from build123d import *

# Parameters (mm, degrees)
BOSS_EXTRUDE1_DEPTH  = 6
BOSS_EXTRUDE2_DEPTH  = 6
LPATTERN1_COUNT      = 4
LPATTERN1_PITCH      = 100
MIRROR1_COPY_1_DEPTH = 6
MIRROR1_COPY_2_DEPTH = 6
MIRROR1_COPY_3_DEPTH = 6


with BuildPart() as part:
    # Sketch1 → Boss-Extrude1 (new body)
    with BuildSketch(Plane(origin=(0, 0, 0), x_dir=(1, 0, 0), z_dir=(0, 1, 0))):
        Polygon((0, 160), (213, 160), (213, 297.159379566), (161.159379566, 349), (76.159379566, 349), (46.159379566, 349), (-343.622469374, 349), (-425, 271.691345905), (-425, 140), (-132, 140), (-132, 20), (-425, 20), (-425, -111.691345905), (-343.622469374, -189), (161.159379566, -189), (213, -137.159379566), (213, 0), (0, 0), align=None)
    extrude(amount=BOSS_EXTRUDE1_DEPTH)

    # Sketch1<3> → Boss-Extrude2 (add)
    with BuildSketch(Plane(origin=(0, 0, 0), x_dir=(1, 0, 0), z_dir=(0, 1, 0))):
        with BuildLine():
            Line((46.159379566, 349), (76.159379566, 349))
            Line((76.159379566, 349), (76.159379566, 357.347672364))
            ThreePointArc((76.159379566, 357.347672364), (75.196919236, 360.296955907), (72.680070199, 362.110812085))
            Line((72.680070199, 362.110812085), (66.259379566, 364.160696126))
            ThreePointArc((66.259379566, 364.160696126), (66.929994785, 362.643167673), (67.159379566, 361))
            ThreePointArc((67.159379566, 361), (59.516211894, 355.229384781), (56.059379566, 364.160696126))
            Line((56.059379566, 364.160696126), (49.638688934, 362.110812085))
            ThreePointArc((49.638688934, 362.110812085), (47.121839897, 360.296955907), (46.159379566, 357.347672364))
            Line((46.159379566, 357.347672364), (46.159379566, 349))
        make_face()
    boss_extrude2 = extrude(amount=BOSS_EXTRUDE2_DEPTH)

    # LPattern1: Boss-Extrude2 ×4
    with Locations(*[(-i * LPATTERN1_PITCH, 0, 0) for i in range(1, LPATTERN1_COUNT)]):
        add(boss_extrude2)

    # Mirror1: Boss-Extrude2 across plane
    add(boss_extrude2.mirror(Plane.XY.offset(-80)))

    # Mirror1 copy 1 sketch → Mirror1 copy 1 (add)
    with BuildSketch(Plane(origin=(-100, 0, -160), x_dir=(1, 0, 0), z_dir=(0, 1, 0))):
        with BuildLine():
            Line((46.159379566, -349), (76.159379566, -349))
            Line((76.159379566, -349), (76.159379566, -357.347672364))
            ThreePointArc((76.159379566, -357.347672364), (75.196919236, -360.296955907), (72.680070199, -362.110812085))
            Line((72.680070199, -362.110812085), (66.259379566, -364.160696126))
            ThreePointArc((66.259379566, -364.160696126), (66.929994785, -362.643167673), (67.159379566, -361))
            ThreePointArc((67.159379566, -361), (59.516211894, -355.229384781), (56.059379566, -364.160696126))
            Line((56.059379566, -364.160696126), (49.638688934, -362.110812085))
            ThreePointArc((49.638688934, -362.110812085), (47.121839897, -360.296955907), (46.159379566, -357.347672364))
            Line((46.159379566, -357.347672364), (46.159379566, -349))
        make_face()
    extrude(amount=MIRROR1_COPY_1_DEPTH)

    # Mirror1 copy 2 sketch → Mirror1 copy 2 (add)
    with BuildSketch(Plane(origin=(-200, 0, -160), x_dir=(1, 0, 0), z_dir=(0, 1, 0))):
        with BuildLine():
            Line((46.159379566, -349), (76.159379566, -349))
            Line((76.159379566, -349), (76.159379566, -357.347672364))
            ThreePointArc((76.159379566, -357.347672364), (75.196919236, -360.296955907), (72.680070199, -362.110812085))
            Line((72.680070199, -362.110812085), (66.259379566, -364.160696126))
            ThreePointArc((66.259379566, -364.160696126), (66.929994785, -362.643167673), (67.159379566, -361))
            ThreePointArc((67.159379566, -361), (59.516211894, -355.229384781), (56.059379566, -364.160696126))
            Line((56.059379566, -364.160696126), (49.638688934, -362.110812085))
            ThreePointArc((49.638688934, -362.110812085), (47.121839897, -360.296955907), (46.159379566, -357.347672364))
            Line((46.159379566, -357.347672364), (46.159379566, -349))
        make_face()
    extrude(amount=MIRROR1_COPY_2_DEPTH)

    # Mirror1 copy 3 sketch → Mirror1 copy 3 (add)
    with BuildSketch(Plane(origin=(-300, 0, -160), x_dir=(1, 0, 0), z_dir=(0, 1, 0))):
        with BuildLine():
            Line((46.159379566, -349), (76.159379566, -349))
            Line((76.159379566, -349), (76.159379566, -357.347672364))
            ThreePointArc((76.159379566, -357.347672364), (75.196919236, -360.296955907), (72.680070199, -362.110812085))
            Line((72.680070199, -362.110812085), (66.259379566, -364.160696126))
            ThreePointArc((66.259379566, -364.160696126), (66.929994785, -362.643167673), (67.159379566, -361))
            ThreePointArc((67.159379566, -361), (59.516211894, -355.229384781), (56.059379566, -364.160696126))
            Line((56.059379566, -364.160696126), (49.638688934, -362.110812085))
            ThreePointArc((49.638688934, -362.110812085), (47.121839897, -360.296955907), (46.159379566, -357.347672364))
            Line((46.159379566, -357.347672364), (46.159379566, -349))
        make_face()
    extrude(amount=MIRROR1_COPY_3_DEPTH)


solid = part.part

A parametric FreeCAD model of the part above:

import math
import FreeCAD as App
import Part
import Sketcher
Q = App.Units.Quantity


def add_polygon(sketch, points):
    """Adds a closed chain of lines whose ends are joined by coincident constraints."""
    first, n = sketch.GeometryCount, len(points)
    for a, b in zip(points, points[1:] + points[:1]):
        sketch.addGeometry(Part.LineSegment(App.Vector(*a, 0), App.Vector(*b, 0)), False)
    for i in range(n):
        sketch.addConstraint(Sketcher.Constraint("Coincident", first + i, 2, first + (i + 1) % n, 1))

doc = App.newDocument("Part")
body = doc.addObject("PartDesign::Body", "Body")

# Sketch on XZ plane
sketch1 = body.newObject("Sketcher::SketchObject", "Sketch")
sketch1.AttachmentSupport = (doc.getObject("XZ_Plane"), [""])
sketch1.MapMode = "FlatFace"
add_polygon(sketch1, [(0, -160), (213, -160), (213, -297.15938), (161.15938, -349), (-343.622469, -349), (-425, -271.691346), (-425, -140), (-132, -140), (-132, -20), (-425, -20), (-425, 111.691346), (-343.622469, 189), (161.15938, 189), (213, 137.15938), (213, 0), (0, 0)])  # lines 0-15
sketch1.addConstraint([
    Sketcher.Constraint("Horizontal", 0),
    Sketcher.Constraint("Vertical", 1),
    Sketcher.Constraint("Horizontal", 3),
    Sketcher.Constraint("Vertical", 5),
    Sketcher.Constraint("Horizontal", 6),
    Sketcher.Constraint("Vertical", 7),
    Sketcher.Constraint("Horizontal", 8),
    Sketcher.Constraint("Vertical", 9),
    Sketcher.Constraint("Horizontal", 11),
    Sketcher.Constraint("Vertical", 13),
    Sketcher.Constraint("Horizontal", 14),
    Sketcher.Constraint("Vertical", 15),
    Sketcher.Constraint("Coincident", 14, 2, -1, 1),
    Sketcher.Constraint("Perpendicular", 2, 12),
    Sketcher.Constraint("Vertical", 5, 2, 8, 2),
    Sketcher.Constraint("Vertical", 3, 2, 10, 2),
    Sketcher.Constraint("Vertical", 2, 2, 11, 2),
    Sketcher.Constraint("Vertical", 1, 2, 12, 2),
    Sketcher.Constraint("Equal", 5, 9),
    Sketcher.Constraint("Equal", 1, 13),
    Sketcher.Constraint("Equal", 4, 10),
    Sketcher.Constraint("Equal", 2, 12),
    Sketcher.Constraint("DistanceX", 0, 1, 0, 2, Q("213 mm")),
    Sketcher.Constraint("DistanceX", 6, 1, 6, 2, Q("293 mm")),
    Sketcher.Constraint("DistanceY", 7, 1, 7, 2, Q("120 mm")),
    Sketcher.Constraint("DistanceY", 15, 2, 15, 1, Q("160 mm")),
    Sketcher.Constraint("DistanceY", 2, 2, -1, 1, Q("349 mm")),
    Sketcher.Constraint("DistanceX", 4, 2, -1, 1, Q("425 mm")),
    Sketcher.Constraint("DistanceX", 3, 2, 3, 1, Q("504.781849 mm")),
    Sketcher.Constraint("DistanceY", 1, 2, 1, 1, Q("137.15938 mm")),
    Sketcher.Constraint("DistanceY", 5, 1, 5, 2, Q("131.691346 mm")),
])
pad1 = body.newObject("PartDesign::Pad", "Pad")
pad1.Profile = sketch1
pad1.Length = 6
pad1.Reversed = True

# Sketch on XZ plane
sketch2 = body.newObject("Sketcher::SketchObject", "Sketch001")
sketch2.AttachmentSupport = (doc.getObject("XZ_Plane"), [""])
sketch2.MapMode = "FlatFace"
sketch2.addGeometry([
    Part.LineSegment(App.Vector(46.15938, -349, 0), App.Vector(76.15938, -349, 0)),  # 0
    Part.LineSegment(App.Vector(76.15938, -349, 0), App.Vector(76.15938, -357.347672, 0)),  # 1
    Part.ArcOfCircle(Part.Circle(App.Vector(71.15938, -357.347672, 0), App.Vector(0, 0, 1), 5), math.radians(-72.293681), math.radians(0)),  # 2
    Part.LineSegment(App.Vector(72.68007, -362.110812, 0), App.Vector(66.25938, -364.160696, 0)),  # 3
    Part.ArcOfCircle(Part.Circle(App.Vector(61.15938, -361, 0), App.Vector(0, 0, 1), 6), math.radians(-31.788331), math.radians(0)),  # 4
    Part.ArcOfCircle(Part.Circle(App.Vector(61.15938, -361, 0), App.Vector(0, 0, 1), 6), math.radians(0), math.radians(211.788331)),  # 5
    Part.LineSegment(App.Vector(56.05938, -364.160696, 0), App.Vector(49.638689, -362.110812, 0)),  # 6
    Part.ArcOfCircle(Part.Circle(App.Vector(51.15938, -357.347672, 0), App.Vector(0, 0, 1), 5), math.radians(-180), math.radians(-107.706319)),  # 7
    Part.LineSegment(App.Vector(46.15938, -357.347672, 0), App.Vector(46.15938, -349, 0)),  # 8
], False)
sketch2.addConstraint([
    Sketcher.Constraint("Coincident", 0, 2, 1, 1),
    Sketcher.Constraint("Tangent", 1, 2, 2, 2),
    Sketcher.Constraint("Tangent", 2, 1, 3, 1),
    Sketcher.Constraint("Coincident", 3, 2, 4, 1),
    Sketcher.Constraint("Tangent", 4, 2, 5, 1),
    Sketcher.Constraint("Coincident", 5, 2, 6, 1),
    Sketcher.Constraint("Tangent", 6, 2, 7, 2),
    Sketcher.Constraint("Tangent", 7, 1, 8, 1),
    Sketcher.Constraint("Coincident", 8, 2, 0, 1),
    Sketcher.Constraint("Horizontal", 0),
    Sketcher.Constraint("Vertical", 1),
    Sketcher.Constraint("Vertical", 8),
    Sketcher.Constraint("Equal", 4, 5),
    Sketcher.Constraint("Equal", 2, 7),
    Sketcher.Constraint("Horizontal", 2, 3, 7, 3),
    Sketcher.Constraint("Horizontal", 5, 3, 4, 2),
    Sketcher.Constraint("Horizontal", 3, 2, 5, 2),
    Sketcher.Constraint("Horizontal", 2, 1, 6, 2),
    Sketcher.Constraint("Radius", 2, Q("5 mm")),
    Sketcher.Constraint("Radius", 4, Q("6 mm")),
    Sketcher.Constraint("DistanceX", 0, 1, 0, 2, Q("30 mm")),
    Sketcher.Constraint("DistanceY", 4, 3, -1, 1, Q("361 mm")),
    Sketcher.Constraint("DistanceY", 0, 2, -1, 1, Q("349 mm")),
    Sketcher.Constraint("DistanceX", 4, 3, 3, 2, Q("5.1 mm")),
    Sketcher.Constraint("DistanceY", 1, 2, 1, 1, Q("8.347672 mm")),
    Sketcher.Constraint("DistanceX", -1, 1, 2, 3, Q("71.15938 mm")),
])
pad2 = body.newObject("PartDesign::Pad", "Pad001")
pad2.Profile = sketch2
pad2.Length = 6
pad2.Reversed = True
doc.recompute()

linearpattern = body.newObject("PartDesign::LinearPattern", "LinearPattern")
linearpattern.Originals = [pad2]
linearpattern.Direction = (doc.getObject("X_Axis"), [""])
linearpattern.Mode = "offset"
linearpattern.Offset = 100
linearpattern.Occurrences = 4
linearpattern.Reversed = True
body.Tip = linearpattern
doc.recompute()

datumplane = body.newObject("PartDesign::Plane", "DatumPlane")
datumplane.AttachmentSupport = (doc.getObject("XY_Plane"), [""])
datumplane.MapMode = "FlatFace"
datumplane.AttachmentOffset = App.Placement(App.Vector(0, 0, -80), App.Rotation())
mirrored = body.newObject("PartDesign::Mirrored", "Mirrored")
mirrored.Originals = [pad2]
mirrored.MirrorPlane = (datumplane, [""])
body.Tip = mirrored

# Sketch on XZ plane
sketch3 = body.newObject("Sketcher::SketchObject", "Sketch002")
sketch3.AttachmentSupport = (doc.getObject("XZ_Plane"), [""])
sketch3.MapMode = "FlatFace"
sketch3.addGeometry([
    Part.LineSegment(App.Vector(-23.84062, 189, 0), App.Vector(-53.84062, 189, 0)),  # 0
    Part.LineSegment(App.Vector(-53.84062, 189, 0), App.Vector(-53.84062, 197.347672, 0)),  # 1
    Part.ArcOfCircle(Part.Circle(App.Vector(-48.84062, 197.347672, 0), App.Vector(0, 0, 1), 5), math.radians(107.706319), math.radians(180)),  # 2
    Part.LineSegment(App.Vector(-50.361311, 202.110812, 0), App.Vector(-43.94062, 204.160696, 0)),  # 3
    Part.ArcOfCircle(Part.Circle(App.Vector(-38.84062, 201, 0), App.Vector(0, 0, 1), 6), math.radians(148.211669), math.radians(360)),  # 4
    Part.ArcOfCircle(Part.Circle(App.Vector(-38.84062, 201, 0), App.Vector(0, 0, 1), 6), math.radians(0), math.radians(31.788331)),  # 5
    Part.LineSegment(App.Vector(-33.74062, 204.160696, 0), App.Vector(-27.31993, 202.110812, 0)),  # 6
    Part.ArcOfCircle(Part.Circle(App.Vector(-28.84062, 197.347672, 0), App.Vector(0, 0, 1), 5), math.radians(0), math.radians(72.293681)),  # 7
    Part.LineSegment(App.Vector(-23.84062, 197.347672, 0), App.Vector(-23.84062, 189, 0)),  # 8
], False)
sketch3.addConstraint([
    Sketcher.Constraint("Coincident", 0, 2, 1, 1),
    Sketcher.Constraint("Tangent", 1, 2, 2, 2),
    Sketcher.Constraint("Tangent", 2, 1, 3, 1),
    Sketcher.Constraint("Coincident", 3, 2, 4, 1),
    Sketcher.Constraint("Tangent", 4, 2, 5, 1),
    Sketcher.Constraint("Coincident", 5, 2, 6, 1),
    Sketcher.Constraint("Tangent", 6, 2, 7, 2),
    Sketcher.Constraint("Tangent", 7, 1, 8, 1),
    Sketcher.Constraint("Coincident", 8, 2, 0, 1),
    Sketcher.Constraint("Horizontal", 0),
    Sketcher.Constraint("Vertical", 1),
    Sketcher.Constraint("Vertical", 8),
    Sketcher.Constraint("Equal", 4, 5),
    Sketcher.Constraint("Equal", 2, 7),
    Sketcher.Constraint("Horizontal", 2, 3, 7, 3),
    Sketcher.Constraint("Horizontal", 5, 3, 4, 2),
    Sketcher.Constraint("Horizontal", 3, 2, 5, 2),
    Sketcher.Constraint("Horizontal", 2, 1, 6, 2),
    Sketcher.Constraint("Radius", 2, Q("5 mm")),
    Sketcher.Constraint("Radius", 4, Q("6 mm")),
    Sketcher.Constraint("DistanceX", 0, 2, 0, 1, Q("30 mm")),
    Sketcher.Constraint("DistanceY", -1, 1, 4, 3, Q("201 mm")),
    Sketcher.Constraint("DistanceY", -1, 1, 0, 2, Q("189 mm")),
    Sketcher.Constraint("DistanceX", 3, 2, 4, 3, Q("5.1 mm")),
    Sketcher.Constraint("DistanceY", 1, 1, 1, 2, Q("8.347672 mm")),
    Sketcher.Constraint("DistanceX", 2, 3, -1, 1, Q("48.84062 mm")),
])
pad3 = body.newObject("PartDesign::Pad", "Pad002")
pad3.Profile = sketch3
pad3.Length = 6
pad3.Reversed = True

# Sketch on XZ plane
sketch4 = body.newObject("Sketcher::SketchObject", "Sketch003")
sketch4.AttachmentSupport = (doc.getObject("XZ_Plane"), [""])
sketch4.MapMode = "FlatFace"
sketch4.addGeometry([
    Part.LineSegment(App.Vector(-123.84062, 189, 0), App.Vector(-153.84062, 189, 0)),  # 0
    Part.LineSegment(App.Vector(-153.84062, 189, 0), App.Vector(-153.84062, 197.347672, 0)),  # 1
    Part.ArcOfCircle(Part.Circle(App.Vector(-148.84062, 197.347672, 0), App.Vector(0, 0, 1), 5), math.radians(107.706319), math.radians(180)),  # 2
    Part.LineSegment(App.Vector(-150.361311, 202.110812, 0), App.Vector(-143.94062, 204.160696, 0)),  # 3
    Part.ArcOfCircle(Part.Circle(App.Vector(-138.84062, 201, 0), App.Vector(0, 0, 1), 6), math.radians(148.211669), math.radians(360)),  # 4
    Part.ArcOfCircle(Part.Circle(App.Vector(-138.84062, 201, 0), App.Vector(0, 0, 1), 6), math.radians(0), math.radians(31.788331)),  # 5
    Part.LineSegment(App.Vector(-133.74062, 204.160696, 0), App.Vector(-127.31993, 202.110812, 0)),  # 6
    Part.ArcOfCircle(Part.Circle(App.Vector(-128.84062, 197.347672, 0), App.Vector(0, 0, 1), 5), math.radians(0), math.radians(72.293681)),  # 7
    Part.LineSegment(App.Vector(-123.84062, 197.347672, 0), App.Vector(-123.84062, 189, 0)),  # 8
], False)
sketch4.addConstraint([
    Sketcher.Constraint("Coincident", 0, 2, 1, 1),
    Sketcher.Constraint("Tangent", 1, 2, 2, 2),
    Sketcher.Constraint("Tangent", 2, 1, 3, 1),
    Sketcher.Constraint("Coincident", 3, 2, 4, 1),
    Sketcher.Constraint("Tangent", 4, 2, 5, 1),
    Sketcher.Constraint("Coincident", 5, 2, 6, 1),
    Sketcher.Constraint("Tangent", 6, 2, 7, 2),
    Sketcher.Constraint("Tangent", 7, 1, 8, 1),
    Sketcher.Constraint("Coincident", 8, 2, 0, 1),
    Sketcher.Constraint("Horizontal", 0),
    Sketcher.Constraint("Vertical", 1),
    Sketcher.Constraint("Vertical", 8),
    Sketcher.Constraint("Equal", 4, 5),
    Sketcher.Constraint("Equal", 2, 7),
    Sketcher.Constraint("Horizontal", 2, 3, 7, 3),
    Sketcher.Constraint("Horizontal", 5, 3, 4, 2),
    Sketcher.Constraint("Horizontal", 3, 2, 5, 2),
    Sketcher.Constraint("Horizontal", 2, 1, 6, 2),
    Sketcher.Constraint("Radius", 2, Q("5 mm")),
    Sketcher.Constraint("Radius", 4, Q("6 mm")),
    Sketcher.Constraint("DistanceX", 0, 2, 0, 1, Q("30 mm")),
    Sketcher.Constraint("DistanceY", -1, 1, 4, 3, Q("201 mm")),
    Sketcher.Constraint("DistanceY", -1, 1, 0, 2, Q("189 mm")),
    Sketcher.Constraint("DistanceX", 3, 2, 4, 3, Q("5.1 mm")),
    Sketcher.Constraint("DistanceY", 1, 1, 1, 2, Q("8.347672 mm")),
    Sketcher.Constraint("DistanceX", 2, 3, -1, 1, Q("148.84062 mm")),
])
pad4 = body.newObject("PartDesign::Pad", "Pad003")
pad4.Profile = sketch4
pad4.Length = 6
pad4.Reversed = True

# Sketch on XZ plane
sketch5 = body.newObject("Sketcher::SketchObject", "Sketch004")
sketch5.AttachmentSupport = (doc.getObject("XZ_Plane"), [""])
sketch5.MapMode = "FlatFace"
sketch5.addGeometry([
    Part.LineSegment(App.Vector(-223.84062, 189, 0), App.Vector(-253.84062, 189, 0)),  # 0
    Part.LineSegment(App.Vector(-253.84062, 189, 0), App.Vector(-253.84062, 197.347672, 0)),  # 1
    Part.ArcOfCircle(Part.Circle(App.Vector(-248.84062, 197.347672, 0), App.Vector(0, 0, 1), 5), math.radians(107.706319), math.radians(180)),  # 2
    Part.LineSegment(App.Vector(-250.361311, 202.110812, 0), App.Vector(-243.94062, 204.160696, 0)),  # 3
    Part.ArcOfCircle(Part.Circle(App.Vector(-238.84062, 201, 0), App.Vector(0, 0, 1), 6), math.radians(148.211669), math.radians(360)),  # 4
    Part.ArcOfCircle(Part.Circle(App.Vector(-238.84062, 201, 0), App.Vector(0, 0, 1), 6), math.radians(0), math.radians(31.788331)),  # 5
    Part.LineSegment(App.Vector(-233.74062, 204.160696, 0), App.Vector(-227.31993, 202.110812, 0)),  # 6
    Part.ArcOfCircle(Part.Circle(App.Vector(-228.84062, 197.347672, 0), App.Vector(0, 0, 1), 5), math.radians(0), math.radians(72.293681)),  # 7
    Part.LineSegment(App.Vector(-223.84062, 197.347672, 0), App.Vector(-223.84062, 189, 0)),  # 8
], False)
sketch5.addConstraint([
    Sketcher.Constraint("Coincident", 0, 2, 1, 1),
    Sketcher.Constraint("Tangent", 1, 2, 2, 2),
    Sketcher.Constraint("Tangent", 2, 1, 3, 1),
    Sketcher.Constraint("Coincident", 3, 2, 4, 1),
    Sketcher.Constraint("Tangent", 4, 2, 5, 1),
    Sketcher.Constraint("Coincident", 5, 2, 6, 1),
    Sketcher.Constraint("Tangent", 6, 2, 7, 2),
    Sketcher.Constraint("Tangent", 7, 1, 8, 1),
    Sketcher.Constraint("Coincident", 8, 2, 0, 1),
    Sketcher.Constraint("Horizontal", 0),
    Sketcher.Constraint("Vertical", 1),
    Sketcher.Constraint("Vertical", 8),
    Sketcher.Constraint("Equal", 4, 5),
    Sketcher.Constraint("Equal", 2, 7),
    Sketcher.Constraint("Horizontal", 2, 3, 7, 3),
    Sketcher.Constraint("Horizontal", 5, 3, 4, 2),
    Sketcher.Constraint("Horizontal", 3, 2, 5, 2),
    Sketcher.Constraint("Horizontal", 2, 1, 6, 2),
    Sketcher.Constraint("Radius", 2, Q("5 mm")),
    Sketcher.Constraint("Radius", 4, Q("6 mm")),
    Sketcher.Constraint("DistanceX", 0, 2, 0, 1, Q("30 mm")),
    Sketcher.Constraint("DistanceY", -1, 1, 4, 3, Q("201 mm")),
    Sketcher.Constraint("DistanceY", -1, 1, 0, 2, Q("189 mm")),
    Sketcher.Constraint("DistanceX", 3, 2, 4, 3, Q("5.1 mm")),
    Sketcher.Constraint("DistanceY", 1, 1, 1, 2, Q("8.347672 mm")),
    Sketcher.Constraint("DistanceX", 2, 3, -1, 1, Q("248.84062 mm")),
])
pad5 = body.newObject("PartDesign::Pad", "Pad004")
pad5.Profile = sketch5
pad5.Length = 6
pad5.Reversed = True

doc.recompute()
